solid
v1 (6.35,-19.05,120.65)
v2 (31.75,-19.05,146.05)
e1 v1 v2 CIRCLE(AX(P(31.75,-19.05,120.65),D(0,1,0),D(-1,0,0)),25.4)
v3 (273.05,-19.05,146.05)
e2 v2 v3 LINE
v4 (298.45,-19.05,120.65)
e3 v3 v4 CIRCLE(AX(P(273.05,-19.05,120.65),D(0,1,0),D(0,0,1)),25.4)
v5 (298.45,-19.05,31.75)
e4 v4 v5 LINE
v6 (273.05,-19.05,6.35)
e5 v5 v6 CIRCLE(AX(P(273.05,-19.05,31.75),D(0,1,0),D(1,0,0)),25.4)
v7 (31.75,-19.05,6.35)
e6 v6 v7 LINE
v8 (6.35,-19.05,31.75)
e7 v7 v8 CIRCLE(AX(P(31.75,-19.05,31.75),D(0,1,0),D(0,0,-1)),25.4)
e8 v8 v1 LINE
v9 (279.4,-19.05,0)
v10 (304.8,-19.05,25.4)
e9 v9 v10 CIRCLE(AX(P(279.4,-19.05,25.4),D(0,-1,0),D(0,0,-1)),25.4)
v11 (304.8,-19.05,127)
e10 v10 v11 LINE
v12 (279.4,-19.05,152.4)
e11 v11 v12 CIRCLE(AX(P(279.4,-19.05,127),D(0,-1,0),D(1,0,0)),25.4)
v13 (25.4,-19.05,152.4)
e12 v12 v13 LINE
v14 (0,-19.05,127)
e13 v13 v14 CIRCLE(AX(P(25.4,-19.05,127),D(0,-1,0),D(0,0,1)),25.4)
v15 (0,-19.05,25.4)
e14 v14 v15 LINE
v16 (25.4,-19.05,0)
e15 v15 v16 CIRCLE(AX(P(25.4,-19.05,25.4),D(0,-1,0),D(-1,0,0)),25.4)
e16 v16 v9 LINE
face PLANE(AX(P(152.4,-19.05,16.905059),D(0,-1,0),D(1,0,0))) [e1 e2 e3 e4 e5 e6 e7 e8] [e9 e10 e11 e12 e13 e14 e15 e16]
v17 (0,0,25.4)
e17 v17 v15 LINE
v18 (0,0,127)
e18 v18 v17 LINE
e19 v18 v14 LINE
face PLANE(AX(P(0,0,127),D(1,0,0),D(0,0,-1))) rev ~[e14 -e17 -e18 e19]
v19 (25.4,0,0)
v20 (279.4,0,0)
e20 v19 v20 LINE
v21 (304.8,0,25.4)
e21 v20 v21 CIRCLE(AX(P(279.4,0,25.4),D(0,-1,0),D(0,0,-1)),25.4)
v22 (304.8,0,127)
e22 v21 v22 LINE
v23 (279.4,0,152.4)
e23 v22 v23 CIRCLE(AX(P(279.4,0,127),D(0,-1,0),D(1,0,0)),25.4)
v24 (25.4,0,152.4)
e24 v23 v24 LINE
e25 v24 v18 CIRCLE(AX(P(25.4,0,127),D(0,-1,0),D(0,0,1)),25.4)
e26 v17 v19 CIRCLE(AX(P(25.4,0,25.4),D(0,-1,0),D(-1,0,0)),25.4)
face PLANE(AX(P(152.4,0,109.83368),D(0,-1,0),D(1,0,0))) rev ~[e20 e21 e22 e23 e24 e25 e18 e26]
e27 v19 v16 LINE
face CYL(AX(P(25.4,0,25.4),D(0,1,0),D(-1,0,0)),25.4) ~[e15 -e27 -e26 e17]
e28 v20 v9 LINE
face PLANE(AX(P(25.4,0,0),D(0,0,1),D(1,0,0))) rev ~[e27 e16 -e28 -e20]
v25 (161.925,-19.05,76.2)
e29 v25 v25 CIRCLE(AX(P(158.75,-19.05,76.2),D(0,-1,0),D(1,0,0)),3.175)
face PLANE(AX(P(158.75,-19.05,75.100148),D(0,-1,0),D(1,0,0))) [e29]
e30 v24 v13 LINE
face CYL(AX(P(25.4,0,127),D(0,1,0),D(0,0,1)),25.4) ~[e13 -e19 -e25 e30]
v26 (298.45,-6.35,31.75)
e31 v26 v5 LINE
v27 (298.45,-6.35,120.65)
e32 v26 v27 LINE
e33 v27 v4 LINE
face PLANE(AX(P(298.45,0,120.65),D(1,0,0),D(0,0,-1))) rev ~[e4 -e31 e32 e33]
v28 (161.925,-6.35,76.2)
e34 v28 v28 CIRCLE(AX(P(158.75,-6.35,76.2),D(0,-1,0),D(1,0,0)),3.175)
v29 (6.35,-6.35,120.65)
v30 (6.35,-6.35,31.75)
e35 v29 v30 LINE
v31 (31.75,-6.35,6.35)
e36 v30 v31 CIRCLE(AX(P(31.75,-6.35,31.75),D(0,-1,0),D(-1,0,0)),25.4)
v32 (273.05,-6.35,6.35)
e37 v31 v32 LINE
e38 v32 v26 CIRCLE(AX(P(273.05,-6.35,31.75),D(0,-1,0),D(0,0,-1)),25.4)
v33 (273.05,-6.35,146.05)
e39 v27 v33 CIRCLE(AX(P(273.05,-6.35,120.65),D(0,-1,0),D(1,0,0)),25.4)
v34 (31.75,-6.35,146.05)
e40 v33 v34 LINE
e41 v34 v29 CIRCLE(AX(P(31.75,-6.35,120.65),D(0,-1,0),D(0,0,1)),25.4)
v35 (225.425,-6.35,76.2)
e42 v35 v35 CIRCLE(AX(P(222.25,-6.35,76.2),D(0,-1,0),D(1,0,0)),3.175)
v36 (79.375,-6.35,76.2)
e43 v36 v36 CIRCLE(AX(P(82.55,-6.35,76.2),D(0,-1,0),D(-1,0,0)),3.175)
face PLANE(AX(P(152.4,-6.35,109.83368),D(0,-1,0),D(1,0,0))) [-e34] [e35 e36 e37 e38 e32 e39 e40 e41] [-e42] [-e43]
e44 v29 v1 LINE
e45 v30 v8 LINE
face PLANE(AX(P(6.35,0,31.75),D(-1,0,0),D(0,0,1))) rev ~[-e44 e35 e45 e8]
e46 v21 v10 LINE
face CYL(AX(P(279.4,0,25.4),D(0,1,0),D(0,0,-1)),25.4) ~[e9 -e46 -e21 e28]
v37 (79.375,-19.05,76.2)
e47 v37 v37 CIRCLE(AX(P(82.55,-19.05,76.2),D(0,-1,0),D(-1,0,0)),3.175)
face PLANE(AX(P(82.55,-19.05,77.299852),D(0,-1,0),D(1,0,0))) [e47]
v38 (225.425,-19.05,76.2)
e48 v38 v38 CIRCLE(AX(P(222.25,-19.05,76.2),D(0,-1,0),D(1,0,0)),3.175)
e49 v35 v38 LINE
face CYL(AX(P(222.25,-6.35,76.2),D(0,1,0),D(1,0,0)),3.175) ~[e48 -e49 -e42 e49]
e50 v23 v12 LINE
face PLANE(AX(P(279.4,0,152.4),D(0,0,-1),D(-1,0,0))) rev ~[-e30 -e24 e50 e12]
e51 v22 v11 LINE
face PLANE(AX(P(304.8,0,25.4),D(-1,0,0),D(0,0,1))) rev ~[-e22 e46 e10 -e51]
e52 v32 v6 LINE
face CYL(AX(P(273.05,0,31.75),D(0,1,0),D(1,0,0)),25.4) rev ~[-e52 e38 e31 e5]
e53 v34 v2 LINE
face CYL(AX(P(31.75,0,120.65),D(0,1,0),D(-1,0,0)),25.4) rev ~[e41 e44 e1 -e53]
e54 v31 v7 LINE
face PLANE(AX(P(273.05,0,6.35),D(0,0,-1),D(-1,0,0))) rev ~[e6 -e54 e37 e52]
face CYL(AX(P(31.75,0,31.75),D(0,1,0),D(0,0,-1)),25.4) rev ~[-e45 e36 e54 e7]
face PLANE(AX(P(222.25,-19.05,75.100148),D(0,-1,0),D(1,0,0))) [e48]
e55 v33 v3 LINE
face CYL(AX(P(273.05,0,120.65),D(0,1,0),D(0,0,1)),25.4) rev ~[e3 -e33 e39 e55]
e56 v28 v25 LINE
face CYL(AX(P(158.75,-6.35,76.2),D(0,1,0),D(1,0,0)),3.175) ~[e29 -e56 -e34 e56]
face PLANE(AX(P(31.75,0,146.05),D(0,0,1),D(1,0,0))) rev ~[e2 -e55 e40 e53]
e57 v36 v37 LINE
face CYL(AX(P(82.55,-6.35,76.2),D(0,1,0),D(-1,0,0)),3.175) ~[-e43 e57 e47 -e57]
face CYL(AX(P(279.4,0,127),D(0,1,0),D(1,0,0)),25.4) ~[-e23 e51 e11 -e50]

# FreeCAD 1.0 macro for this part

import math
import FreeCAD as App
import Part
import Sketcher
from FreeCAD import Vector
Q = App.Units.Quantity

doc = App.newDocument("Part")
params = doc.addObject("Spreadsheet::Sheet", "Params")
for row, (alias, value) in enumerate([
    ("sketch1_radius", "1 in"),
    ("sketch1_width", "10 in"),
    ("sketch1_height", "4 in"),
    ("sketch1_width2", "9.5 in"),
    ("sketch1_height2", "3.5 in"),
    ("pad1_length", "0.75 in"),
    ("sketch2_radius", "1 in"),
    ("sketch2_width", "9.5 in"),
    ("sketch2_height", "3.5 in"),
    ("pad2_length", "0.25 in"),
    ("sketch3_diameter", "0.25 in"),
    ("pad3_length", "0.5 in"),
], start=1):
    params.set(f"A{row}", alias)
    params.set(f"B{row}", "=" + value)
    params.setAlias(f"B{row}", alias)

body = doc.addObject("PartDesign::Body", "Body")

sketch1 = doc.addObject("Sketcher::SketchObject", "Sketch")
body.addObject(sketch1)
sketch1.AttachmentSupport = (doc.XZ_Plane, [""])
sketch1.MapMode = "FlatFace"
sketch1.addGeometry(Part.ArcOfCircle(Part.Circle(Vector(25, 25, 0), Vector(0, 0, 1), 25), math.radians(180), math.radians(270)), False)
sketch1.addGeometry(Part.LineSegment(Vector(25, 0, 0), Vector(279, 0, 0)), False)
sketch1.addGeometry(Part.ArcOfCircle(Part.Circle(Vector(279, 25, 0), Vector(0, 0, 1), 25), math.radians(-90), math.radians(0)), False)
sketch1.addGeometry(Part.LineSegment(Vector(305, 25, 0), Vector(305, 127, 0)), False)
sketch1.addGeometry(Part.ArcOfCircle(Part.Circle(Vector(279, 127, 0), Vector(0, 0, 1), 25), math.radians(0), math.radians(90)), False)
sketch1.addGeometry(Part.LineSegment(Vector(279, 152, 0), Vector(25, 152, 0)), False)
sketch1.addGeometry(Part.ArcOfCircle(Part.Circle(Vector(25, 127, 0), Vector(0, 0, 1), 25), math.radians(90), math.radians(180)), False)
sketch1.addGeometry(Part.LineSegment(Vector(0, 127, 0), Vector(0, 25, 0)), False)
sketch1.addGeometry(Part.ArcOfCircle(Part.Circle(Vector(273, 32, 0), Vector(0, 0, 1), 25), math.radians(-90), math.radians(0)), False)
sketch1.addGeometry(Part.LineSegment(Vector(273, 6, 0), Vector(32, 6, 0)), False)
sketch1.addGeometry(Part.ArcOfCircle(Part.Circle(Vector(32, 32, 0), Vector(0, 0, 1), 25), math.radians(180), math.radians(270)), False)
sketch1.addGeometry(Part.LineSegment(Vector(6, 32, 0), Vector(6, 121, 0)), False)
sketch1.addGeometry(Part.ArcOfCircle(Part.Circle(Vector(32, 121, 0), Vector(0, 0, 1), 25), math.radians(90), math.radians(180)), False)
sketch1.addGeometry(Part.LineSegment(Vector(32, 146, 0), Vector(273, 146, 0)), False)
sketch1.addGeometry(Part.ArcOfCircle(Part.Circle(Vector(273, 121, 0), Vector(0, 0, 1), 25), math.radians(0), math.radians(90)), False)
sketch1.addGeometry(Part.LineSegment(Vector(298, 121, 0), Vector(298, 32, 0)), False)
sketch1.addConstraint(Sketcher.Constraint("Tangent", 0, 2, 1, 1))
sketch1.addConstraint(Sketcher.Constraint("Tangent", 1, 2, 2, 1))
sketch1.addConstraint(Sketcher.Constraint("Tangent", 2, 2, 3, 1))
sketch1.addConstraint(Sketcher.Constraint("Tangent", 3, 2, 4, 1))
sketch1.addConstraint(Sketcher.Constraint("Tangent", 4, 2, 5, 1))
sketch1.addConstraint(Sketcher.Constraint("Tangent", 5, 2, 6, 1))
sketch1.addConstraint(Sketcher.Constraint("Tangent", 6, 2, 7, 1))
sketch1.addConstraint(Sketcher.Constraint("Tangent", 7, 2, 0, 1))
sketch1.addConstraint(Sketcher.Constraint("Tangent", 8, 1, 9, 1))
sketch1.addConstraint(Sketcher.Constraint("Tangent", 9, 2, 10, 2))
sketch1.addConstraint(Sketcher.Constraint("Tangent", 10, 1, 11, 1))
sketch1.addConstraint(Sketcher.Constraint("Tangent", 11, 2, 12, 2))
sketch1.addConstraint(Sketcher.Constraint("Tangent", 12, 1, 13, 1))
sketch1.addConstraint(Sketcher.Constraint("Tangent", 13, 2, 14, 2))
sketch1.addConstraint(Sketcher.Constraint("Tangent", 14, 1, 15, 1))
sketch1.addConstraint(Sketcher.Constraint("Tangent", 15, 2, 8, 2))
sketch1.addConstraint(Sketcher.Constraint("Horizontal", 1))
sketch1.addConstraint(Sketcher.Constraint("Vertical", 3))
sketch1.addConstraint(Sketcher.Constraint("Horizontal", 5))
sketch1.addConstraint(Sketcher.Constraint("Vertical", 7))
sketch1.addConstraint(Sketcher.Constraint("Horizontal", 9))
sketch1.addConstraint(Sketcher.Constraint("Vertical", 11))
sketch1.addConstraint(Sketcher.Constraint("Horizontal", 13))
sketch1.addConstraint(Sketcher.Constraint("Vertical", 15))
sketch1.addConstraint(Sketcher.Constraint("Equal", 0, 2))
sketch1.addConstraint(Sketcher.Constraint("Equal", 2, 4))
sketch1.addConstraint(Sketcher.Constraint("Equal", 4, 6))
sketch1.addConstraint(Sketcher.Constraint("Equal", 6, 8))
sketch1.addConstraint(Sketcher.Constraint("Equal", 8, 10))
sketch1.addConstraint(Sketcher.Constraint("Equal", 10, 12))
sketch1.addConstraint(Sketcher.Constraint("Equal", 12, 14))
sketch1.addConstraint(Sketcher.Constraint("PointOnObject", 0, 2, -1))
sketch1.addConstraint(Sketcher.Constraint("PointOnObject", 6, 2, -2))
sketch1.addConstraint(Sketcher.Constraint("Radius", 0, Q("1 in")))
sketch1.addConstraint(Sketcher.Constraint("DistanceX", 1, 1, 1, 2, Q("10 in")))
sketch1.addConstraint(Sketcher.Constraint("DistanceY", 3, 1, 3, 2, Q("4 in")))
sketch1.addConstraint(Sketcher.Constraint("DistanceX", 9, 2, 9, 1, Q("9.5 in")))
sketch1.addConstraint(Sketcher.Constraint("DistanceY", 11, 1, 11, 2, Q("3.5 in")))
sketch1.addConstraint(Sketcher.Constraint("DistanceX", -1, 1, 8, 3, Q("10.75 in")))
sketch1.addConstraint(Sketcher.Constraint("DistanceY", -1, 1, 8, 3, Q("1.25 in")))
sketch1.setExpression("Constraints[33]", "Params.sketch1_radius")
sketch1.setExpression("Constraints[34]", "Params.sketch1_width")
sketch1.setExpression("Constraints[35]", "Params.sketch1_height")
sketch1.setExpression("Constraints[36]", "Params.sketch1_width2")
sketch1.setExpression("Constraints[37]", "Params.sketch1_height2")
pad1 = doc.addObject("PartDesign::Pad", "Pad")
body.addObject(pad1)
pad1.Profile = sketch1
pad1.setExpression("Length", "Params.pad1_length")

sketch2 = doc.addObject("Sketcher::SketchObject", "Sketch001")
body.addObject(sketch2)
sketch2.AttachmentSupport = (doc.XZ_Plane, [""])
sketch2.MapMode = "FlatFace"
sketch2.addGeometry(Part.LineSegment(Vector(6, 121, 0), Vector(6, 32, 0)), False)
sketch2.addGeometry(Part.ArcOfCircle(Part.Circle(Vector(32, 32, 0), Vector(0, 0, 1), 25), math.radians(180), math.radians(270)), False)
sketch2.addGeometry(Part.LineSegment(Vector(32, 6, 0), Vector(273, 6, 0)), False)
sketch2.addGeometry(Part.ArcOfCircle(Part.Circle(Vector(273, 32, 0), Vector(0, 0, 1), 25), math.radians(-90), math.radians(0)), False)
sketch2.addGeometry(Part.LineSegment(Vector(298, 32, 0), Vector(298, 121, 0)), False)
sketch2.addGeometry(Part.ArcOfCircle(Part.Circle(Vector(273, 121, 0), Vector(0, 0, 1), 25), math.radians(0), math.radians(90)), False)
sketch2.addGeometry(Part.LineSegment(Vector(273, 146, 0), Vector(32, 146, 0)), False)
sketch2.addGeometry(Part.ArcOfCircle(Part.Circle(Vector(32, 121, 0), Vector(0, 0, 1), 25), math.radians(90), math.radians(180)), False)
sketch2.addConstraint(Sketcher.Constraint("Tangent", 0, 2, 1, 1))
sketch2.addConstraint(Sketcher.Constraint("Tangent", 1, 2, 2, 1))
sketch2.addConstraint(Sketcher.Constraint("Tangent", 2, 2, 3, 1))
sketch2.addConstraint(Sketcher.Constraint("Tangent", 3, 2, 4, 1))
sketch2.addConstraint(Sketcher.Constraint("Tangent", 4, 2, 5, 1))
sketch2.addConstraint(Sketcher.Constraint("Tangent", 5, 2, 6, 1))
sketch2.addConstraint(Sketcher.Constraint("Tangent", 6, 2, 7, 1))
sketch2.addConstraint(Sketcher.Constraint("Tangent", 7, 2, 0, 1))
sketch2.addConstraint(Sketcher.Constraint("Vertical", 0))
sketch2.addConstraint(Sketcher.Constraint("Horizontal", 2))
sketch2.addConstraint(Sketcher.Constraint("Vertical", 4))
sketch2.addConstraint(Sketcher.Constraint("Horizontal", 6))
sketch2.addConstraint(Sketcher.Constraint("Equal", 1, 3))
sketch2.addConstraint(Sketcher.Constraint("Equal", 3, 5))
sketch2.addConstraint(Sketcher.Constraint("Equal", 5, 7))
sketch2.addConstraint(Sketcher.Constraint("Radius", 1, Q("1 in")))
sketch2.addConstraint(Sketcher.Constraint("DistanceX", 2, 1, 2, 2, Q("9.5 in")))
sketch2.addConstraint(Sketcher.Constraint("DistanceY", 0, 2, 0, 1, Q("3.5 in")))
sketch2.addConstraint(Sketcher.Constraint("DistanceX", -1, 1, 1, 3, Q("1.25 in")))
sketch2.addConstraint(Sketcher.Constraint("DistanceY", -1, 1, 1, 3, Q("1.25 in")))
sketch2.setExpression("Constraints[15]", "Params.sketch2_radius")
sketch2.setExpression("Constraints[16]", "Params.sketch2_width")
sketch2.setExpression("Constraints[17]", "Params.sketch2_height")
pad2 = doc.addObject("PartDesign::Pad", "Pad001")
body.addObject(pad2)
pad2.Profile = sketch2
pad2.setExpression("Length", "Params.pad2_length")

sketch3 = doc.addObject("Sketcher::SketchObject", "Sketch002")
body.addObject(sketch3)
sketch3.AttachmentSupport = (doc.XZ_Plane, [""])
sketch3.MapMode = "FlatFace"
sketch3.AttachmentOffset = App.Placement(Vector(0, 0, 0.25 * 25.4), App.Rotation())
sketch3.addGeometry(Part.Circle(Vector(82.5, 76.2, 0), Vector(0, 0, 1), 3.2), False)
sketch3.addGeometry(Part.Circle(Vector(158.8, 76.2, 0), Vector(0, 0, 1), 3.2), False)
sketch3.addGeometry(Part.Circle(Vector(222.2, 76.2, 0), Vector(0, 0, 1), 3.2), False)
sketch3.addConstraint(Sketcher.Constraint("Equal", 0, 1))
sketch3.addConstraint(Sketcher.Constraint("Equal", 1, 2))
sketch3.addConstraint(Sketcher.Constraint("Horizontal", 0, 3, 1, 3))
sketch3.addConstraint(Sketcher.Constraint("Horizontal", 1, 3, 2, 3))
sketch3.addConstraint(Sketcher.Constraint("Diameter", 0, Q("0.25 in")))
sketch3.addConstraint(Sketcher.Constraint("DistanceY", -1, 1, 0, 3, Q("3 in")))
sketch3.addConstraint(Sketcher.Constraint("DistanceX", 0, 3, 1, 3, Q("3 in")))
sketch3.addConstraint(Sketcher.Constraint("DistanceX", 1, 3, 2, 3, Q("2.5 in")))
sketch3.addConstraint(Sketcher.Constraint("DistanceX", -1, 1, 0, 3, Q("3.25 in")))
sketch3.setExpression("Constraints[4]", "Params.sketch3_diameter")
pad3 = doc.addObject("PartDesign::Pad", "Pad002")
body.addObject(pad3)
pad3.Profile = sketch3
pad3.setExpression("Length", "Params.pad3_length")

doc.recompute()
